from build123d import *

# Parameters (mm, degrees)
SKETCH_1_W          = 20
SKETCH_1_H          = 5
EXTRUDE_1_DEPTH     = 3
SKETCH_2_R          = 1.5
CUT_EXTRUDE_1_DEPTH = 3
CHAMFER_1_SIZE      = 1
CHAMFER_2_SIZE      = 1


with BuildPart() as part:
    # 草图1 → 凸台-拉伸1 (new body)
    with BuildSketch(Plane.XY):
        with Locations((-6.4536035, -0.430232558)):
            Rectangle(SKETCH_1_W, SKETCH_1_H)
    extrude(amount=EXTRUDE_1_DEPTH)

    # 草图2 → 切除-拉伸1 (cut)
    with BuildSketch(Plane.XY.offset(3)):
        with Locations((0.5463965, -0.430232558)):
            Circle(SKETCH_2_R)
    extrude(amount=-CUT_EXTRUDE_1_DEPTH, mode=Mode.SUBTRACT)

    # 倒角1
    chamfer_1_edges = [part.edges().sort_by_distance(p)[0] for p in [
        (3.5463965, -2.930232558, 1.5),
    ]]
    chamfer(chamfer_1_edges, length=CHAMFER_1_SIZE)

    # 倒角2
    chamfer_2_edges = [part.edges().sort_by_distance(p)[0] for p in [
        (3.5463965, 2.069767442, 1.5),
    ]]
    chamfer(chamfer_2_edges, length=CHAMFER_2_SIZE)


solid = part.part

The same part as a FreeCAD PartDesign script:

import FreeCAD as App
import Part
import Sketcher

V = App.Vector


def edges_at(feature, points):
    """Names of the edges that pass closest to the given points."""
    edges = feature.Shape.Edges
    near = lambda p: min(range(len(edges)), key=lambda i: edges[i].distToShape(Part.Vertex(*p))[0])
    return sorted({f"Edge{near(p) + 1}" for p in points})


def add_polygon(sketch, points):
    """Adds a closed chain of lines whose ends are joined by coincident constraints."""
    first, n = sketch.GeometryCount, len(points)
    for a, b in zip(points, points[1:] + points[:1]):
        sketch.addGeometry(Part.LineSegment(App.Vector(*a, 0), App.Vector(*b, 0)), False)
    for i in range(n):
        sketch.addConstraint(Sketcher.Constraint("Coincident", first + i, 2, first + (i + 1) % n, 1))

doc = App.newDocument("Part")
body = doc.addObject("PartDesign::Body", "Body")

sketch1 = body.newObject("Sketcher::SketchObject", "Sketch")
sketch1.AttachmentSupport = (doc.getObject("XY_Plane"), [""])
sketch1.MapMode = "FlatFace"
add_polygon(sketch1, [(-16, 2), (-16, -3), (4, -3), (4, 2)])
sketch1.addConstraint(Sketcher.Constraint("Vertical", 0))
sketch1.addConstraint(Sketcher.Constraint("Horizontal", 1))
sketch1.addConstraint(Sketcher.Constraint("Vertical", 2))
sketch1.addConstraint(Sketcher.Constraint("Horizontal", 3))
sketch1.addConstraint(Sketcher.Constraint("DistanceX", 1, 1, 1, 2, 20.0))
sketch1.addConstraint(Sketcher.Constraint("DistanceY", 0, 2, 0, 1, 5.0))
sketch1.addConstraint(Sketcher.Constraint("DistanceX", 0, 2, -1, 1, 16.453603))
sketch1.addConstraint(Sketcher.Constraint("DistanceY", 0, 2, -1, 1, 2.930233))
pad1 = body.newObject("PartDesign::Pad", "Pad")
pad1.Profile = sketch1
pad1.Length = 3

sketch2 = body.newObject("Sketcher::SketchObject", "Sketch001")
sketch2.AttachmentSupport = (doc.getObject("XY_Plane"), [""])
sketch2.MapMode = "FlatFace"
sketch2.AttachmentOffset = App.Placement(V(0, 0, 3), App.Rotation())
sketch2.addGeometry(Part.Circle(V(0.5, -0.4, 0), V(0, 0, 1), 1.5), False)
sketch2.addConstraint(Sketcher.Constraint("Diameter", 0, 3.0))
sketch2.addConstraint(Sketcher.Constraint("DistanceX", -1, 1, 0, 3, 0.546396))
sketch2.addConstraint(Sketcher.Constraint("DistanceY", 0, 3, -1, 1, 0.430233))
pocket1 = body.newObject("PartDesign::Pocket", "Pocket")
pocket1.Profile = sketch2
pocket1.Length = 3
doc.recompute()

chamfer = body.newObject("PartDesign::Chamfer", "Chamfer")
chamfer.Base = (pocket1, edges_at(pocket1, [(3.546, -2.93, 1.5)]))
chamfer.Size = 1
doc.recompute()

chamfer2 = body.newObject("PartDesign::Chamfer", "Chamfer001")
chamfer2.Base = (chamfer, edges_at(chamfer, [(3.546, 2.07, 1.5)]))
chamfer2.Size = 1

doc.recompute()
